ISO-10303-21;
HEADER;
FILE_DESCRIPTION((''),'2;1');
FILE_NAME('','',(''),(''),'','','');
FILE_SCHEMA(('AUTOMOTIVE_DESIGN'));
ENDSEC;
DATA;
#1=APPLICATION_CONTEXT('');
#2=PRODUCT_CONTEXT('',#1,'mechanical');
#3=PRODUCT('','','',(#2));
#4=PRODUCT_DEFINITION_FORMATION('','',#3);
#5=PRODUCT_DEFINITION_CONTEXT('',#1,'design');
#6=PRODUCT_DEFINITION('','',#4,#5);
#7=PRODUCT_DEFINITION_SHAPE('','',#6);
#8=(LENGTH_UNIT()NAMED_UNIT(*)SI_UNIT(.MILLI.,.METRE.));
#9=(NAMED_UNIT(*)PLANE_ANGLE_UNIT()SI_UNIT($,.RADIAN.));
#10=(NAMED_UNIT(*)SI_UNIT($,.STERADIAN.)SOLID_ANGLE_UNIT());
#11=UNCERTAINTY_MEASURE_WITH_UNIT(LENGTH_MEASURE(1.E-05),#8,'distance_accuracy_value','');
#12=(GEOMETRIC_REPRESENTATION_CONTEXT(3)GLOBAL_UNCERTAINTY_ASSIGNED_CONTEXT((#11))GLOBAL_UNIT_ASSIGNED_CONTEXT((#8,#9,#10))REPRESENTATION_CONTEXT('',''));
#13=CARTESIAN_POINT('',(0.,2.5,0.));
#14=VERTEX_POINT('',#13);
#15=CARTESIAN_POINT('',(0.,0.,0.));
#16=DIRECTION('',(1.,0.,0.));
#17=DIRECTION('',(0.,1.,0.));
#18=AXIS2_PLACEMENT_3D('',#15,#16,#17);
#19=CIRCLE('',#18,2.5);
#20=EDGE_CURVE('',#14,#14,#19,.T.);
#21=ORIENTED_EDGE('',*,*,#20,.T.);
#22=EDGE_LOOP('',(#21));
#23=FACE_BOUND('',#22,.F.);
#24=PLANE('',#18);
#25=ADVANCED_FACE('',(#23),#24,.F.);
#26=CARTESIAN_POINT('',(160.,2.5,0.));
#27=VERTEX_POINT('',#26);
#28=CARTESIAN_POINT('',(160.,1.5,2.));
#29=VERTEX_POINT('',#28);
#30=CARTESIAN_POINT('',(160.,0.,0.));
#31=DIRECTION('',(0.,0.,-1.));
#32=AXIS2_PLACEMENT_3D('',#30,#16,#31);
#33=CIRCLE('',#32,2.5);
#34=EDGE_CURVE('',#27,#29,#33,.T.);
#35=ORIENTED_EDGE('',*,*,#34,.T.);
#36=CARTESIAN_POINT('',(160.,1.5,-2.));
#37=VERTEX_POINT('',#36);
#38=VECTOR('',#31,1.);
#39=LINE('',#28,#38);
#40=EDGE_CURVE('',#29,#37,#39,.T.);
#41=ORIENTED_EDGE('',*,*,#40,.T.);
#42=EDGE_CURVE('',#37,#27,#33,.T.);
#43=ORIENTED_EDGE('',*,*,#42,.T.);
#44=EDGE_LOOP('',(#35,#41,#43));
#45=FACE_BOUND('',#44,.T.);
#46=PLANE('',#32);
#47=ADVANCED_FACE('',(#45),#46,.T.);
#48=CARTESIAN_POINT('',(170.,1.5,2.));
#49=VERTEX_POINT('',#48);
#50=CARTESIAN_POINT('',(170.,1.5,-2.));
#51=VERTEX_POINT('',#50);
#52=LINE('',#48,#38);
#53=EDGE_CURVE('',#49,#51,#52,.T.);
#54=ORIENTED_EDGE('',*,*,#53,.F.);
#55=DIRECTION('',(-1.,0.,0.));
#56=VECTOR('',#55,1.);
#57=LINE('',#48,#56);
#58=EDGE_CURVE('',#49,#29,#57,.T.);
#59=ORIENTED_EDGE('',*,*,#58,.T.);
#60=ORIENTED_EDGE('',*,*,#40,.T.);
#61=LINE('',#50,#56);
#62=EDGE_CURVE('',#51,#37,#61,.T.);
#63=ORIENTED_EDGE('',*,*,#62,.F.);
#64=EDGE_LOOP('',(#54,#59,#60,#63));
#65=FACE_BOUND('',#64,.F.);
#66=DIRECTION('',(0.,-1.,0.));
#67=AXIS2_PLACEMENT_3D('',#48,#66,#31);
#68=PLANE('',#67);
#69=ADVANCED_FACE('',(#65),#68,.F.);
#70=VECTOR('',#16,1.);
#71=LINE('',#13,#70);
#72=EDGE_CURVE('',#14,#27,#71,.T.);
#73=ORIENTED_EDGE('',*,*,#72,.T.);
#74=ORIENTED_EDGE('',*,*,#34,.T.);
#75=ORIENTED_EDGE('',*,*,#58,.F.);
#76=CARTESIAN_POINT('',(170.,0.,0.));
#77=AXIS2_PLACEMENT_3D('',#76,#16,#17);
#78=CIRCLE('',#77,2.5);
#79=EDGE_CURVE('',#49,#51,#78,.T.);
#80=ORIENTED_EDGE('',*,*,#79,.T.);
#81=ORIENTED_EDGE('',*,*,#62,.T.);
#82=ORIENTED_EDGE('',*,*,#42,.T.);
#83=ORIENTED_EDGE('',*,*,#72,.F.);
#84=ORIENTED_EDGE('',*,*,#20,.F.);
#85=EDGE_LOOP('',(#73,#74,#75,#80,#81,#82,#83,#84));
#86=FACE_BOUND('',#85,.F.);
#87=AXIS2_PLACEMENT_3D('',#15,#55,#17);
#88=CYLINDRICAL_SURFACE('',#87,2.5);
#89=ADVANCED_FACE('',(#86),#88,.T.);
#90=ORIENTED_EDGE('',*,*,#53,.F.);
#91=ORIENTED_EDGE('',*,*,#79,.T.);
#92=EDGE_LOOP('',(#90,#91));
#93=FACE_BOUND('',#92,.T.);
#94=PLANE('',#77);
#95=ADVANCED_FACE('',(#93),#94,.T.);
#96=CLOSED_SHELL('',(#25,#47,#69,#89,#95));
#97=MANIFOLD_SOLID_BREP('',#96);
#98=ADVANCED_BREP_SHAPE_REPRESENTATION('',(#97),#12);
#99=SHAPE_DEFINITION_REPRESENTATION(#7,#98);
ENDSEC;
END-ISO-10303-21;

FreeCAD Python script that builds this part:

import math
import FreeCAD as App
import Part
import Sketcher
from FreeCAD import Vector
Q = App.Units.Quantity

doc = App.newDocument("Part")
body = doc.addObject("PartDesign::Body", "Body")

sketch1 = body.newObject("Sketcher::SketchObject", "Sketch")
sketch1.AttachmentSupport = (doc.getObject("YZ_Plane"), [""])
sketch1.MapMode = "FlatFace"
sketch1.addGeometry(Part.Circle(Vector(0, 0, 0), Vector(0, 0, 1), 2.5), False)
sketch1.addConstraint([
    Sketcher.Constraint("Coincident", 0, 3, -1, 1),
    Sketcher.Constraint("Diameter", 0, Q("5 mm")),
])
pad1 = body.newObject("PartDesign::Pad", "Pad")
pad1.Profile = sketch1
pad1.Length = 170

sketch2 = body.newObject("Sketcher::SketchObject", "Sketch001")
sketch2.AttachmentSupport = (doc.getObject("YZ_Plane"), [""])
sketch2.MapMode = "FlatFace"
sketch2.AttachmentOffset = App.Placement(Vector(0, 0, 170), App.Rotation())
sketch2.addGeometry([
    Part.LineSegment(Vector(1.5, 2, 0), Vector(1.5, -2, 0)),
    Part.ArcOfCircle(Part.Circle(Vector(0, 0, 0), Vector(0, 0, 1), 2.5), math.radians(-53), math.radians(53)),
], False)
sketch2.addConstraint([
    Sketcher.Constraint("Coincident", 0, 1, 1, 2),
    Sketcher.Constraint("Coincident", 1, 1, 0, 2),
    Sketcher.Constraint("Vertical", 0),
    Sketcher.Constraint("Coincident", 1, 3, -1, 1),
    Sketcher.Constraint("DistanceX", -1, 1, 0, 1, Q("1.5 mm")),
    Sketcher.Constraint("Radius", 1, Q("2.5 mm")),
])
pocket1 = body.newObject("PartDesign::Pocket", "Pocket")
pocket1.Profile = sketch2
pocket1.Length = 10

doc.recompute()
